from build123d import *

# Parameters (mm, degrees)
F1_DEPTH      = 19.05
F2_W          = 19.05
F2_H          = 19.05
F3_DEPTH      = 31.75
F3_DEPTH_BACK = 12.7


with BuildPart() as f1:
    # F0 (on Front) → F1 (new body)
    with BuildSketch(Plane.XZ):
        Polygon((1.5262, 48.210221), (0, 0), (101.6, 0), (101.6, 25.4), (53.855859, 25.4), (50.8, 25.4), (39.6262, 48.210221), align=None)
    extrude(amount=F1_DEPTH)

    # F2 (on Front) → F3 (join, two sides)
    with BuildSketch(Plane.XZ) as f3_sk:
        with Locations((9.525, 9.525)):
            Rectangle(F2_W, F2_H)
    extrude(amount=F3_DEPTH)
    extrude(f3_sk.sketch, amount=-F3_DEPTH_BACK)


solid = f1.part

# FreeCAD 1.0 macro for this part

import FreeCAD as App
import Part
import Sketcher

V = App.Vector
Q = App.Units.Quantity

doc = App.newDocument("Part")
body = doc.addObject("PartDesign::Body", "Body")

# Sketch on XZ plane
sketch1 = body.newObject("Sketcher::SketchObject", "Sketch")
sketch1.AttachmentSupport = (doc.getObject("XZ_Plane"), [""])
sketch1.MapMode = "FlatFace"
sketch1.addGeometry(Part.LineSegment(V(1.5262, 48.210221, 0), V(0, 0, 0)), False)
sketch1.addGeometry(Part.LineSegment(V(0, 0, 0), V(101.6, 0, 0)), False)
sketch1.addGeometry(Part.LineSegment(V(101.6, 0, 0), V(101.6, 25.4, 0)), False)
sketch1.addGeometry(Part.LineSegment(V(101.6, 25.4, 0), V(50.8, 25.4, 0)), False)
sketch1.addGeometry(Part.LineSegment(V(50.8, 25.4, 0), V(39.6262, 48.210221, 0)), False)
sketch1.addGeometry(Part.LineSegment(V(39.6262, 48.210221, 0), V(1.5262, 48.210221, 0)), False)
sketch1.addConstraint(Sketcher.Constraint("Coincident", 0, 2, 1, 1))
sketch1.addConstraint(Sketcher.Constraint("Coincident", 1, 2, 2, 1))
sketch1.addConstraint(Sketcher.Constraint("Coincident", 2, 2, 3, 1))
sketch1.addConstraint(Sketcher.Constraint("Coincident", 3, 2, 4, 1))
sketch1.addConstraint(Sketcher.Constraint("Coincident", 4, 2, 5, 1))
sketch1.addConstraint(Sketcher.Constraint("Coincident", 5, 2, 0, 1))
sketch1.addConstraint(Sketcher.Constraint("Horizontal", 1))
sketch1.addConstraint(Sketcher.Constraint("Vertical", 2))
sketch1.addConstraint(Sketcher.Constraint("Horizontal", 3))
sketch1.addConstraint(Sketcher.Constraint("Horizontal", 5))
sketch1.addConstraint(Sketcher.Constraint("Coincident", 0, 2, -1, 1))
sketch1.addConstraint(Sketcher.Constraint("DistanceX", 1, 1, 1, 2, Q("4 in")))
sketch1.addConstraint(Sketcher.Constraint("DistanceX", 3, 2, 3, 1, Q("2 in")))
sketch1.addConstraint(Sketcher.Constraint("DistanceY", 2, 1, 2, 2, Q("1 in")))
sketch1.addConstraint(Sketcher.Constraint("Distance", 4, Q("1 in")))
sketch1.addConstraint(Sketcher.Constraint("DistanceX", 5, 2, 5, 1, Q("1.5 in")))
sketch1.addConstraint(Sketcher.Constraint("DistanceX", -1, 1, 4, 2, 39.6262))
pad1 = body.newObject("PartDesign::Pad", "Pad")
pad1.Profile = sketch1
pad1.Length = Q("0.75 in")

# Sketch on XZ plane
sketch2 = body.newObject("Sketcher::SketchObject", "Sketch001")
sketch2.AttachmentSupport = (doc.getObject("XZ_Plane"), [""])
sketch2.MapMode = "FlatFace"
sketch2.addGeometry(Part.LineSegment(V(0, 19.05, 0), V(0, 0, 0)), False)
sketch2.addGeometry(Part.LineSegment(V(0, 0, 0), V(19.05, 0, 0)), False)
sketch2.addGeometry(Part.LineSegment(V(19.05, 0, 0), V(19.05, 19.05, 0)), False)
sketch2.addGeometry(Part.LineSegment(V(19.05, 19.05, 0), V(0, 19.05, 0)), False)
sketch2.addConstraint(Sketcher.Constraint("Coincident", 0, 2, 1, 1))
sketch2.addConstraint(Sketcher.Constraint("Coincident", 1, 2, 2, 1))
sketch2.addConstraint(Sketcher.Constraint("Coincident", 2, 2, 3, 1))
sketch2.addConstraint(Sketcher.Constraint("Coincident", 3, 2, 0, 1))
sketch2.addConstraint(Sketcher.Constraint("Vertical", 0))
sketch2.addConstraint(Sketcher.Constraint("Horizontal", 1))
sketch2.addConstraint(Sketcher.Constraint("Vertical", 2))
sketch2.addConstraint(Sketcher.Constraint("Horizontal", 3))
sketch2.addConstraint(Sketcher.Constraint("Coincident", 0, 2, -1, 1))
sketch2.addConstraint(Sketcher.Constraint("Equal", 3, 0))
sketch2.addConstraint(Sketcher.Constraint("DistanceX", 1, 1, 1, 2, Q("0.75 in")))
pad2 = body.newObject("PartDesign::Pad", "Pad001")
pad2.Profile = sketch2
pad2.Type = "TwoLengths"
pad2.Length = Q("1.25 in")
pad2.Length2 = Q("0.5 in")

doc.recompute()
